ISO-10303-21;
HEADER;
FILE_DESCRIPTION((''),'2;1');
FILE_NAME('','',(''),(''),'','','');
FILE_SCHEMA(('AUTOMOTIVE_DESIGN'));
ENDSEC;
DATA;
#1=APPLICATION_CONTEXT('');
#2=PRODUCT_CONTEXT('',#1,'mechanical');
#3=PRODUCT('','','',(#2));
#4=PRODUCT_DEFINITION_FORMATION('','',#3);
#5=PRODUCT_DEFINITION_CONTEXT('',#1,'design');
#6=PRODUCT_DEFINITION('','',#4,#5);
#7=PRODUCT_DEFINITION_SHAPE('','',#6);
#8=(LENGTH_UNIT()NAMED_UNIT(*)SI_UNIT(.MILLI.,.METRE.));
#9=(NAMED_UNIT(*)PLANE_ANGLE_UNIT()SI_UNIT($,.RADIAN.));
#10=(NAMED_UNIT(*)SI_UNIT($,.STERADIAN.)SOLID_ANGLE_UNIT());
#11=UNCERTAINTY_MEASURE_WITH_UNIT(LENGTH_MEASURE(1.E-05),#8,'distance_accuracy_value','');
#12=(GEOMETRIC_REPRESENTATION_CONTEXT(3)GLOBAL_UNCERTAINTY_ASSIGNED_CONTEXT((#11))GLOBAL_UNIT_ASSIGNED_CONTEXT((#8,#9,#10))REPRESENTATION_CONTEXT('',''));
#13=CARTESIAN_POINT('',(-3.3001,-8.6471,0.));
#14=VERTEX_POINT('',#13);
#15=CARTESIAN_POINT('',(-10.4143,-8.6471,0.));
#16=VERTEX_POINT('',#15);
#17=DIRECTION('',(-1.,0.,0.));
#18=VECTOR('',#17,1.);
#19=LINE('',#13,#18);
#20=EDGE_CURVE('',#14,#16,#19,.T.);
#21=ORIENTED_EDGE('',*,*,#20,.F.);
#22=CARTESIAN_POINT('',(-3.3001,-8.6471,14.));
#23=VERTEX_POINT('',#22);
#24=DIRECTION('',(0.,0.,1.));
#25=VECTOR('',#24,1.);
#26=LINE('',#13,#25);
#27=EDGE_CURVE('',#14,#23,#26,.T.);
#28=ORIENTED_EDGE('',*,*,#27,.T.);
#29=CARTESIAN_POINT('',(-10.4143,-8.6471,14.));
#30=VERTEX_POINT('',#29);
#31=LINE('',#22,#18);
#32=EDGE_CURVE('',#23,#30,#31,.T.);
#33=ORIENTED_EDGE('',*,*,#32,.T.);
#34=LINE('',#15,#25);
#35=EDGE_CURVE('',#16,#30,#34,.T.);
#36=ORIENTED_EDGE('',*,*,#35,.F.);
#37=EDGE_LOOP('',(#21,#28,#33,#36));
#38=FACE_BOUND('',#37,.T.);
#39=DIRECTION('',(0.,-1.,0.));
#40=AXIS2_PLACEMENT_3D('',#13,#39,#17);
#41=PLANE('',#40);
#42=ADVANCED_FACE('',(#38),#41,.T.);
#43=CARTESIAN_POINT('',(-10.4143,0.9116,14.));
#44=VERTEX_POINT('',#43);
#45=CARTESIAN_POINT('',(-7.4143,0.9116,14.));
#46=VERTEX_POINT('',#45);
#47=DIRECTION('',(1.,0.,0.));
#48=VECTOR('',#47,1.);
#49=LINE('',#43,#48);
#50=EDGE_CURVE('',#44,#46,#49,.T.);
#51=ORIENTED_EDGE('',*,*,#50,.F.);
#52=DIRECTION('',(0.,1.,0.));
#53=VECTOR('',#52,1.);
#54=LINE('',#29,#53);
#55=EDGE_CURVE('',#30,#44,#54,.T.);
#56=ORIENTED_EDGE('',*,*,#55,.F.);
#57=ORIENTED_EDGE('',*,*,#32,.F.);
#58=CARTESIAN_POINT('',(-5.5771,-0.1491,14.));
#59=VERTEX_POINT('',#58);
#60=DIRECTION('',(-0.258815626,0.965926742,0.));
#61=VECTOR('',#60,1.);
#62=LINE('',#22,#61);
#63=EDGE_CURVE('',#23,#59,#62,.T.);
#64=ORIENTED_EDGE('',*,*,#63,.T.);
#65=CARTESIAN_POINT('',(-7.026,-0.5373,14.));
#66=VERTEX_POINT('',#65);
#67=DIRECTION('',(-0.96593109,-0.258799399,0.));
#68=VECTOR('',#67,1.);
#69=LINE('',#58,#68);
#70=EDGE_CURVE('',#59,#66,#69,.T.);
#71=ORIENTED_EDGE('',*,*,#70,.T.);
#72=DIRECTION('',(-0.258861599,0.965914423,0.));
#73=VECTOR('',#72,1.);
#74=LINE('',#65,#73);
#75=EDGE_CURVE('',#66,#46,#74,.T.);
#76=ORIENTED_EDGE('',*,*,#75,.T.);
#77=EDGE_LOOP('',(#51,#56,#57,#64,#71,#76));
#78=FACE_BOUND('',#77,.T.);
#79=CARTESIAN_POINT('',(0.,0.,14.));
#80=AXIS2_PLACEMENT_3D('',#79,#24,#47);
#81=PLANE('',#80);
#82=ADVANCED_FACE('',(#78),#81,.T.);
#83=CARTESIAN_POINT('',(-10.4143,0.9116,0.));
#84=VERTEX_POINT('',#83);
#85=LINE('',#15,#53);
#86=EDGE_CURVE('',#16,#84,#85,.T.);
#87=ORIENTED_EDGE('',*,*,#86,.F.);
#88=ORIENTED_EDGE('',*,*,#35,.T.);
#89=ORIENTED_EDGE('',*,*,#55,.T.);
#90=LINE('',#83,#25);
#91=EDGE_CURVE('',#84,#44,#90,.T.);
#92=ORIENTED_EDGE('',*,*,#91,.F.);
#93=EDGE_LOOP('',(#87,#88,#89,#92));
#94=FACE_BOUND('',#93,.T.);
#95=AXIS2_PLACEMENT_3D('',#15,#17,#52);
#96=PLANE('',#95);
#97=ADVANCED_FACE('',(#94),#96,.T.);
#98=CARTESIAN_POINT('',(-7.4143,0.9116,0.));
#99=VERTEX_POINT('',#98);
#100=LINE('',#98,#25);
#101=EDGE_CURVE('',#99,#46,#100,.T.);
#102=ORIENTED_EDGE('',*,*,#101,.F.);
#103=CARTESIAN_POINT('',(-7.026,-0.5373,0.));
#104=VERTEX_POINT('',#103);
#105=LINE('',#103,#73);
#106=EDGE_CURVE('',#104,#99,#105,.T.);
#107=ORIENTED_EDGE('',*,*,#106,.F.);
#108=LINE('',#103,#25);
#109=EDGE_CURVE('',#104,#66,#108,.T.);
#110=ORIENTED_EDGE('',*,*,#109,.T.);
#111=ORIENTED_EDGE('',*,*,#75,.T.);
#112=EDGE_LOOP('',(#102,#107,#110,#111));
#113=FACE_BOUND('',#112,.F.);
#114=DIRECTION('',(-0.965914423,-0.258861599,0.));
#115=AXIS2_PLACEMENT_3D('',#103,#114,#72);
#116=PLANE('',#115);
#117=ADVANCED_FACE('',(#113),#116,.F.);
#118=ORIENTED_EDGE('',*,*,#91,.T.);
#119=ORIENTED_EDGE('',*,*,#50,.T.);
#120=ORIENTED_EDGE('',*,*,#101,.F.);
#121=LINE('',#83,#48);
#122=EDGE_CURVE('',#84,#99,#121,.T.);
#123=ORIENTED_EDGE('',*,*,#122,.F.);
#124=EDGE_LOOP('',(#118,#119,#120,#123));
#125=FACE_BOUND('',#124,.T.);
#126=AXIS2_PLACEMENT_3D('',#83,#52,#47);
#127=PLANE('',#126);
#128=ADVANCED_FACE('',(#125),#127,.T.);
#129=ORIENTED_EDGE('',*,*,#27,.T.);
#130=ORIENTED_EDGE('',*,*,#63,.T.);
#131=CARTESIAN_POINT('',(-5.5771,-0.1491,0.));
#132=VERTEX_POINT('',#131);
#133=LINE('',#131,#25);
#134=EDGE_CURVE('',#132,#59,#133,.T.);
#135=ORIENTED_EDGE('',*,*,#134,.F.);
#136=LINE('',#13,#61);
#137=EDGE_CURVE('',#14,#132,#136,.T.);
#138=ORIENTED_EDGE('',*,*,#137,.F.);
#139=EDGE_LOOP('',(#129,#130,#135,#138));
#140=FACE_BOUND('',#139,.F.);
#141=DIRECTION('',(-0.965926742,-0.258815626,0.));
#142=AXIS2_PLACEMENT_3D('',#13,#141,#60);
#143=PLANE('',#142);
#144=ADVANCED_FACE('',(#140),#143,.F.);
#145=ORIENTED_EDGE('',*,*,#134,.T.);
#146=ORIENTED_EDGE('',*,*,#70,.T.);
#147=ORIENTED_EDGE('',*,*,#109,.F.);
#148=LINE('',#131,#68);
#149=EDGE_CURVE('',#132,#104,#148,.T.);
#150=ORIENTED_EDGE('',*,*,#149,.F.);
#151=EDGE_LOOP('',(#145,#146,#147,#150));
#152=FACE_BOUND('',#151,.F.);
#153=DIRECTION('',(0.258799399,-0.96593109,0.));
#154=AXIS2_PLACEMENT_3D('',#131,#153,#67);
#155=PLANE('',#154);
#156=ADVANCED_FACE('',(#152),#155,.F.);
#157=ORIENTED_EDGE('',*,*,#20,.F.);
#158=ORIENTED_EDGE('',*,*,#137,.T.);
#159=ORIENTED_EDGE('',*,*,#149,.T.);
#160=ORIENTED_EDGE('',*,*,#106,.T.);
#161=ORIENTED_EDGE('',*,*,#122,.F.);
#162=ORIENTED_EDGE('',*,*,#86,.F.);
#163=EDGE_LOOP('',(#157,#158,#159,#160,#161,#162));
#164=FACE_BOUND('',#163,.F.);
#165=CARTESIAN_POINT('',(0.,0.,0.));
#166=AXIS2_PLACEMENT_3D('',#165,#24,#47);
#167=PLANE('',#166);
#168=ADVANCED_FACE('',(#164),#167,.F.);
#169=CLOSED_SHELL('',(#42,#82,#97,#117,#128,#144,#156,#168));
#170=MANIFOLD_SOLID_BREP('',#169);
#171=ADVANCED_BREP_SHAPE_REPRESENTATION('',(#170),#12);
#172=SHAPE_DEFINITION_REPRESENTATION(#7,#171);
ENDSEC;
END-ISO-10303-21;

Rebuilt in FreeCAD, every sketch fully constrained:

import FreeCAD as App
import Part
import Sketcher

V = App.Vector
Q = App.Units.Quantity


def add_polygon(sketch, points):
    """Adds a closed chain of lines whose ends are joined by coincident constraints."""
    first, n = sketch.GeometryCount, len(points)
    for a, b in zip(points, points[1:] + points[:1]):
        sketch.addGeometry(Part.LineSegment(App.Vector(*a, 0), App.Vector(*b, 0)), False)
    for i in range(n):
        sketch.addConstraint(Sketcher.Constraint("Coincident", first + i, 2, first + (i + 1) % n, 1))

doc = App.newDocument("Part")
body = doc.addObject("PartDesign::Body", "Body")

# Sketch on XY plane
sketch1 = body.newObject("Sketcher::SketchObject", "Sketch")
sketch1.AttachmentSupport = (doc.getObject("XY_Plane"), [""])
sketch1.MapMode = "FlatFace"
add_polygon(sketch1, [(-3.3001, -8.6471), (-5.5771, -0.1491), (-7.026, -0.5373), (-7.4143, 0.9116), (-10.4143, 0.9116), (-10.4143, -8.6471)])  # lines 0-5
sketch1.addConstraint([
    Sketcher.Constraint("Horizontal", 3),
    Sketcher.Constraint("Vertical", 4),
    Sketcher.Constraint("Horizontal", 5),
    Sketcher.Constraint("Perpendicular", 0, 1),
    Sketcher.Constraint("Perpendicular", 1, 2),
    Sketcher.Constraint("Equal", 1, 2),
    Sketcher.Constraint("DistanceX", 3, 2, 3, 1, 3.0),
    Sketcher.Constraint("Distance", 1, 1.5),
    Sketcher.Constraint("Angle", 0, Q("104.9998 deg")),
    Sketcher.Constraint("DistanceY", 4, 2, 0, 2, 8.498),
    Sketcher.Constraint("DistanceX", 5, 2, -1, 1, 3.3),
    Sketcher.Constraint("DistanceY", 0, 2, -1, 1, 0.149),
])
pad1 = body.newObject("PartDesign::Pad", "Pad")
pad1.Profile = sketch1
pad1.Length = 14

doc.recompute()
